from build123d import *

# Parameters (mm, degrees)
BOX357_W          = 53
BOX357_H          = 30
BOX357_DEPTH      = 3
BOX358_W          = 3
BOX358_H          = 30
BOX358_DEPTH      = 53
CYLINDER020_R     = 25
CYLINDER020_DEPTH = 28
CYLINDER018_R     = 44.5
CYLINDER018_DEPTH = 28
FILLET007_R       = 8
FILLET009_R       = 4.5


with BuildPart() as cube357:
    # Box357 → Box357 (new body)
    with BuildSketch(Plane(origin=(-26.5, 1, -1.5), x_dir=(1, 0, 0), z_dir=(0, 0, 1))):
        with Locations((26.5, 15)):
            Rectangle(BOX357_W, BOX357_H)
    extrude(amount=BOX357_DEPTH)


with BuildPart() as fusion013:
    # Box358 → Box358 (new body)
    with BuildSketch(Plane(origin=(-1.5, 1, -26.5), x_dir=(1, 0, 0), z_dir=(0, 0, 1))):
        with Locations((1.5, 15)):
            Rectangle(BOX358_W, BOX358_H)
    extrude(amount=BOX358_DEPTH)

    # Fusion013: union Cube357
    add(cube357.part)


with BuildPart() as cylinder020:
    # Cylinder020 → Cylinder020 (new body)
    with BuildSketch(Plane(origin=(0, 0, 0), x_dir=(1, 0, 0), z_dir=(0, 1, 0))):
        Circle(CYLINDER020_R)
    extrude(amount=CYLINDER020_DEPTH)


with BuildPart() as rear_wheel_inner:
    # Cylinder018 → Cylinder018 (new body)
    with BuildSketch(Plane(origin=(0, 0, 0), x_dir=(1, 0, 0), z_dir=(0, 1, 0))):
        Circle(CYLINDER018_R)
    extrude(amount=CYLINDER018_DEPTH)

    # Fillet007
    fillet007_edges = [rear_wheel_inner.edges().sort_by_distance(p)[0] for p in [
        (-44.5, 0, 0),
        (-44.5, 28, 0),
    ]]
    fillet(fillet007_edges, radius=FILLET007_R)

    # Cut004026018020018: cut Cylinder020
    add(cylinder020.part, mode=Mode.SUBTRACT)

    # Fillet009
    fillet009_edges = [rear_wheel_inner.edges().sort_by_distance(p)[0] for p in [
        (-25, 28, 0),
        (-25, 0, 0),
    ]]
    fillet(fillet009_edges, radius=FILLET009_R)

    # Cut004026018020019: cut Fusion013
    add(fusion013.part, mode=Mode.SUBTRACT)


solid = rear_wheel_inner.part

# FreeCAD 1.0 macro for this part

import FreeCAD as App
import Part
import Sketcher
from FreeCAD import Vector
Q = App.Units.Quantity


def edges_at(feature, points):
    """Names of the edges that pass closest to the given points."""
    edges = feature.Shape.Edges
    near = lambda p: min(range(len(edges)), key=lambda i: edges[i].distToShape(Part.Vertex(*p))[0])
    return sorted({f"Edge{near(p) + 1}" for p in points})


def add_polygon(sketch, points):
    """Adds a closed chain of lines whose ends are joined by coincident constraints."""
    first, n = sketch.GeometryCount, len(points)
    for a, b in zip(points, points[1:] + points[:1]):
        sketch.addGeometry(Part.LineSegment(App.Vector(*a, 0), App.Vector(*b, 0)), False)
    for i in range(n):
        sketch.addConstraint(Sketcher.Constraint("Coincident", first + i, 2, first + (i + 1) % n, 1))

doc = App.newDocument("Part")
body = doc.addObject("PartDesign::Body", "Body")

# Sketch on XY plane
sketch1 = body.newObject("Sketcher::SketchObject", "Sketch")
sketch1.AttachmentSupport = (doc.getObject("XY_Plane"), [""])
sketch1.MapMode = "FlatFace"
sketch1.AttachmentOffset = App.Placement(Vector(0, 0, -1.5), App.Rotation())
add_polygon(sketch1, [(-26, 31), (-26, 1), (26, 1), (26, 31)])  # lines 0-3
sketch1.addConstraint([
    Sketcher.Constraint("Vertical", 0),
    Sketcher.Constraint("Horizontal", 1),
    Sketcher.Constraint("Vertical", 2),
    Sketcher.Constraint("Horizontal", 3),
    Sketcher.Constraint("DistanceX", 1, 1, 1, 2, Q("53 mm")),
    Sketcher.Constraint("DistanceY", 0, 2, 0, 1, Q("30 mm")),
    Sketcher.Constraint("DistanceY", -1, 1, 0, 2, Q("1 mm")),
    Sketcher.Constraint("DistanceX", 0, 2, -1, 1, Q("26.5 mm")),
])
pad1 = body.newObject("PartDesign::Pad", "Pad")
pad1.Profile = sketch1
pad1.Length = 3
body2 = doc.addObject("PartDesign::Body", "Body001")

# Sketch on XY plane
sketch2 = body2.newObject("Sketcher::SketchObject", "Sketch001")
sketch2.AttachmentSupport = (doc.getObject("XY_Plane001"), [""])
sketch2.MapMode = "FlatFace"
sketch2.AttachmentOffset = App.Placement(Vector(0, 0, -26.5), App.Rotation())
add_polygon(sketch2, [(-1.5, 31), (-1.5, 1), (1.5, 1), (1.5, 31)])  # lines 0-3
sketch2.addConstraint([
    Sketcher.Constraint("Vertical", 0),
    Sketcher.Constraint("Horizontal", 1),
    Sketcher.Constraint("Vertical", 2),
    Sketcher.Constraint("Horizontal", 3),
    Sketcher.Constraint("DistanceX", 1, 1, 1, 2, Q("3 mm")),
    Sketcher.Constraint("DistanceY", 0, 2, 0, 1, Q("30 mm")),
    Sketcher.Constraint("DistanceY", -1, 1, 0, 2, Q("1 mm")),
    Sketcher.Constraint("DistanceX", 0, 2, -1, 1, Q("1.5 mm")),
])
pad2 = body2.newObject("PartDesign::Pad", "Pad001")
pad2.Profile = sketch2
pad2.Length = 53
doc.recompute()

boolean = body2.newObject("PartDesign::Boolean", "Boolean")
boolean.Type = "Fuse"
boolean.addObjects([body])
body3 = doc.addObject("PartDesign::Body", "Body002")

# Sketch on XZ plane
sketch3 = body3.newObject("Sketcher::SketchObject", "Sketch002")
sketch3.AttachmentSupport = (doc.getObject("XZ_Plane002"), [""])
sketch3.MapMode = "FlatFace"
sketch3.addGeometry(Part.Circle(Vector(0, 0, 0), Vector(0, 0, 1), 25), False)
sketch3.addConstraint([
    Sketcher.Constraint("Coincident", 0, 3, -1, 1),
    Sketcher.Constraint("Diameter", 0, Q("50 mm")),
])
pad3 = body3.newObject("PartDesign::Pad", "Pad002")
pad3.Profile = sketch3
pad3.Length = 28
pad3.Reversed = True
body4 = doc.addObject("PartDesign::Body", "Body003")

# Sketch on XZ plane
sketch4 = body4.newObject("Sketcher::SketchObject", "Sketch003")
sketch4.AttachmentSupport = (doc.getObject("XZ_Plane003"), [""])
sketch4.MapMode = "FlatFace"
sketch4.addGeometry(Part.Circle(Vector(0, 0, 0), Vector(0, 0, 1), 44), False)
sketch4.addConstraint([
    Sketcher.Constraint("Coincident", 0, 3, -1, 1),
    Sketcher.Constraint("Diameter", 0, Q("89 mm")),
])
pad4 = body4.newObject("PartDesign::Pad", "Pad003")
pad4.Profile = sketch4
pad4.Length = 28
pad4.Reversed = True
doc.recompute()

fillet = body4.newObject("PartDesign::Fillet", "Fillet")
fillet.Base = (pad4, edges_at(pad4, [(-44.5, 0, 0), (-44.5, 28, 0)]))
fillet.Radius = 8
doc.recompute()

boolean2 = body4.newObject("PartDesign::Boolean", "Boolean001")
boolean2.Type = "Cut"
boolean2.addObjects([body3])
doc.recompute()

fillet2 = body4.newObject("PartDesign::Fillet", "Fillet001")
fillet2.Base = (boolean2, edges_at(boolean2, [(-25, 28, 0), (-25, 0, 0)]))
fillet2.Radius = 4.5
doc.recompute()

boolean3 = body4.newObject("PartDesign::Boolean", "Boolean002")
boolean3.Type = "Cut"
boolean3.addObjects([body2])

doc.recompute()
